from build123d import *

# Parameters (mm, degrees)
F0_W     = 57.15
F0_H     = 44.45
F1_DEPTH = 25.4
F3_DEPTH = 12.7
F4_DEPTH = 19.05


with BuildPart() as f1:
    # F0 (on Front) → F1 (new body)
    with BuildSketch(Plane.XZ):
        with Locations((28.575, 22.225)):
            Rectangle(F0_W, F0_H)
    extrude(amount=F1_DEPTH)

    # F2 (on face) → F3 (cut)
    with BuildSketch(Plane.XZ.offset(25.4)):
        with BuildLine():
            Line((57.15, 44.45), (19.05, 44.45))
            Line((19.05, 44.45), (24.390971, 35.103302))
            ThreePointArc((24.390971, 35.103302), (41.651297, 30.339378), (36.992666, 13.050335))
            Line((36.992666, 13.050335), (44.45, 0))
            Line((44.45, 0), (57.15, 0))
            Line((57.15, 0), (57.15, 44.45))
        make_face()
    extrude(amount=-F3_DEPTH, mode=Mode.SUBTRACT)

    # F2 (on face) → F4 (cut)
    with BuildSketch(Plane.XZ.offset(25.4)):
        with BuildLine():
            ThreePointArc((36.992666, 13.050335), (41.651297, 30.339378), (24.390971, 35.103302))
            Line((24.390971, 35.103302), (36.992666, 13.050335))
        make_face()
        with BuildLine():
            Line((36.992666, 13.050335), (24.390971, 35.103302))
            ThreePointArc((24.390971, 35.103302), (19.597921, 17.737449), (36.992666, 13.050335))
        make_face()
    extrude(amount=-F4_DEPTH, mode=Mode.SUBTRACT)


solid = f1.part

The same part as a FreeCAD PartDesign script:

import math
import FreeCAD as App
import Part
import Sketcher
from FreeCAD import Vector
Q = App.Units.Quantity

doc = App.newDocument("Part")
body = doc.addObject("PartDesign::Body", "Body")

# Sketch on XZ plane
sketch1 = body.newObject("Sketcher::SketchObject", "Sketch")
sketch1.AttachmentSupport = (doc.getObject("XZ_Plane"), [""])
sketch1.MapMode = "FlatFace"
sketch1.addGeometry(Part.LineSegment(Vector(0, 44, 0), Vector(0, 0, 0)), False)
sketch1.addGeometry(Part.LineSegment(Vector(0, 0, 0), Vector(57, 0, 0)), False)
sketch1.addGeometry(Part.LineSegment(Vector(57, 0, 0), Vector(57, 44, 0)), False)
sketch1.addGeometry(Part.LineSegment(Vector(57, 44, 0), Vector(0, 44, 0)), False)
sketch1.addConstraint(Sketcher.Constraint("Coincident", 0, 2, 1, 1))
sketch1.addConstraint(Sketcher.Constraint("Coincident", 1, 2, 2, 1))
sketch1.addConstraint(Sketcher.Constraint("Coincident", 2, 2, 3, 1))
sketch1.addConstraint(Sketcher.Constraint("Coincident", 3, 2, 0, 1))
sketch1.addConstraint(Sketcher.Constraint("Vertical", 0))
sketch1.addConstraint(Sketcher.Constraint("Horizontal", 1))
sketch1.addConstraint(Sketcher.Constraint("Vertical", 2))
sketch1.addConstraint(Sketcher.Constraint("Horizontal", 3))
sketch1.addConstraint(Sketcher.Constraint("Coincident", 0, 2, -1, 1))
sketch1.addConstraint(Sketcher.Constraint("DistanceX", 1, 1, 1, 2, Q("2.25 in")))
sketch1.addConstraint(Sketcher.Constraint("DistanceY", 0, 2, 0, 1, Q("1.75 in")))
pad1 = body.newObject("PartDesign::Pad", "Pad")
pad1.Profile = sketch1
pad1.Length = Q("1 in")

# Sketch on XZ plane
sketch2 = body.newObject("Sketcher::SketchObject", "Sketch001")
sketch2.AttachmentSupport = (doc.getObject("XZ_Plane"), [""])
sketch2.MapMode = "FlatFace"
sketch2.AttachmentOffset = App.Placement(Vector(0, 0, 1 * 25.4), App.Rotation())
sketch2.addGeometry(Part.LineSegment(Vector(57, 44, 0), Vector(19, 44, 0)), False)
sketch2.addGeometry(Part.LineSegment(Vector(19, 44, 0), Vector(24, 35, 0)), False)
sketch2.addGeometry(Part.ArcOfCircle(Part.Circle(Vector(31, 24, 0), Vector(0, 0, 1), 13), math.radians(-60), math.radians(119)), False)
sketch2.addGeometry(Part.LineSegment(Vector(37, 13, 0), Vector(44, 0, 0)), False)
sketch2.addGeometry(Part.LineSegment(Vector(44, 0, 0), Vector(57, 0, 0)), False)
sketch2.addGeometry(Part.LineSegment(Vector(57, 0, 0), Vector(57, 44, 0)), False)
sketch2.addConstraint(Sketcher.Constraint("Coincident", 0, 2, 1, 1))
sketch2.addConstraint(Sketcher.Constraint("Coincident", 1, 2, 2, 2))
sketch2.addConstraint(Sketcher.Constraint("Coincident", 2, 1, 3, 1))
sketch2.addConstraint(Sketcher.Constraint("Coincident", 3, 2, 4, 1))
sketch2.addConstraint(Sketcher.Constraint("Coincident", 4, 2, 5, 1))
sketch2.addConstraint(Sketcher.Constraint("Coincident", 5, 2, 0, 1))
sketch2.addConstraint(Sketcher.Constraint("Horizontal", 0))
sketch2.addConstraint(Sketcher.Constraint("Horizontal", 4))
sketch2.addConstraint(Sketcher.Constraint("Vertical", 5))
sketch2.addConstraint(Sketcher.Constraint("PointOnObject", 3, 2, -1))
sketch2.addConstraint(Sketcher.Constraint("Parallel", 1, 3))
sketch2.addConstraint(Sketcher.Constraint("Radius", 2, Q("0.5 in")))
sketch2.addConstraint(Sketcher.Constraint("DistanceX", 0, 2, 0, 1, Q("1.5 in")))
sketch2.addConstraint(Sketcher.Constraint("DistanceX", 4, 1, 4, 2, Q("0.5 in")))
sketch2.addConstraint(Sketcher.Constraint("DistanceY", 5, 1, 5, 2, Q("1.75 in")))
sketch2.addConstraint(Sketcher.Constraint("DistanceX", -1, 1, 0, 2, Q("0.75 in")))
sketch2.addConstraint(Sketcher.Constraint("DistanceY", 1, 2, 0, 2, Q("9.346698 mm")))
sketch2.addConstraint(Sketcher.Constraint("Distance", 1, Q("10.76507 mm")))
sketch2.addConstraint(Sketcher.Constraint("DistanceX", -1, 1, 2, 3, Q("30.624609 mm")))
pocket1 = body.newObject("PartDesign::Pocket", "Pocket")
pocket1.Profile = sketch2
pocket1.Length = Q("0.5 in")

# Sketch on XZ plane
sketch3 = body.newObject("Sketcher::SketchObject", "Sketch002")
sketch3.AttachmentSupport = (doc.getObject("XZ_Plane"), [""])
sketch3.MapMode = "FlatFace"
sketch3.AttachmentOffset = App.Placement(Vector(0, 0, 1 * 25.4), App.Rotation())
sketch3.addGeometry(Part.ArcOfCircle(Part.Circle(Vector(31, 24, 0), Vector(0, 0, 1), 13), math.radians(-60), math.radians(119)), False)
sketch3.addGeometry(Part.ArcOfCircle(Part.Circle(Vector(31, 24, 0), Vector(0, 0, 1), 13), math.radians(119), math.radians(300)), False)
sketch3.addConstraint(Sketcher.Constraint("Tangent", 0, 1, 1, 2))
sketch3.addConstraint(Sketcher.Constraint("Coincident", 1, 1, 0, 2))
sketch3.addConstraint(Sketcher.Constraint("Radius", 0, Q("0.5 in")))
sketch3.addConstraint(Sketcher.Constraint("DistanceY", -1, 1, 1, 1, Q("35.103302 mm")))
sketch3.addConstraint(Sketcher.Constraint("DistanceX", -1, 1, 0, 3, Q("30.624609 mm")))
sketch3.addConstraint(Sketcher.Constraint("DistanceX", -1, 1, 1, 1, Q("24.390971 mm")))
sketch3.addConstraint(Sketcher.Constraint("DistanceY", 0, 1, 1, 3, Q("10.988078 mm")))
pocket2 = body.newObject("PartDesign::Pocket", "Pocket001")
pocket2.Profile = sketch3
pocket2.Length = Q("0.75 in")

doc.recompute()
